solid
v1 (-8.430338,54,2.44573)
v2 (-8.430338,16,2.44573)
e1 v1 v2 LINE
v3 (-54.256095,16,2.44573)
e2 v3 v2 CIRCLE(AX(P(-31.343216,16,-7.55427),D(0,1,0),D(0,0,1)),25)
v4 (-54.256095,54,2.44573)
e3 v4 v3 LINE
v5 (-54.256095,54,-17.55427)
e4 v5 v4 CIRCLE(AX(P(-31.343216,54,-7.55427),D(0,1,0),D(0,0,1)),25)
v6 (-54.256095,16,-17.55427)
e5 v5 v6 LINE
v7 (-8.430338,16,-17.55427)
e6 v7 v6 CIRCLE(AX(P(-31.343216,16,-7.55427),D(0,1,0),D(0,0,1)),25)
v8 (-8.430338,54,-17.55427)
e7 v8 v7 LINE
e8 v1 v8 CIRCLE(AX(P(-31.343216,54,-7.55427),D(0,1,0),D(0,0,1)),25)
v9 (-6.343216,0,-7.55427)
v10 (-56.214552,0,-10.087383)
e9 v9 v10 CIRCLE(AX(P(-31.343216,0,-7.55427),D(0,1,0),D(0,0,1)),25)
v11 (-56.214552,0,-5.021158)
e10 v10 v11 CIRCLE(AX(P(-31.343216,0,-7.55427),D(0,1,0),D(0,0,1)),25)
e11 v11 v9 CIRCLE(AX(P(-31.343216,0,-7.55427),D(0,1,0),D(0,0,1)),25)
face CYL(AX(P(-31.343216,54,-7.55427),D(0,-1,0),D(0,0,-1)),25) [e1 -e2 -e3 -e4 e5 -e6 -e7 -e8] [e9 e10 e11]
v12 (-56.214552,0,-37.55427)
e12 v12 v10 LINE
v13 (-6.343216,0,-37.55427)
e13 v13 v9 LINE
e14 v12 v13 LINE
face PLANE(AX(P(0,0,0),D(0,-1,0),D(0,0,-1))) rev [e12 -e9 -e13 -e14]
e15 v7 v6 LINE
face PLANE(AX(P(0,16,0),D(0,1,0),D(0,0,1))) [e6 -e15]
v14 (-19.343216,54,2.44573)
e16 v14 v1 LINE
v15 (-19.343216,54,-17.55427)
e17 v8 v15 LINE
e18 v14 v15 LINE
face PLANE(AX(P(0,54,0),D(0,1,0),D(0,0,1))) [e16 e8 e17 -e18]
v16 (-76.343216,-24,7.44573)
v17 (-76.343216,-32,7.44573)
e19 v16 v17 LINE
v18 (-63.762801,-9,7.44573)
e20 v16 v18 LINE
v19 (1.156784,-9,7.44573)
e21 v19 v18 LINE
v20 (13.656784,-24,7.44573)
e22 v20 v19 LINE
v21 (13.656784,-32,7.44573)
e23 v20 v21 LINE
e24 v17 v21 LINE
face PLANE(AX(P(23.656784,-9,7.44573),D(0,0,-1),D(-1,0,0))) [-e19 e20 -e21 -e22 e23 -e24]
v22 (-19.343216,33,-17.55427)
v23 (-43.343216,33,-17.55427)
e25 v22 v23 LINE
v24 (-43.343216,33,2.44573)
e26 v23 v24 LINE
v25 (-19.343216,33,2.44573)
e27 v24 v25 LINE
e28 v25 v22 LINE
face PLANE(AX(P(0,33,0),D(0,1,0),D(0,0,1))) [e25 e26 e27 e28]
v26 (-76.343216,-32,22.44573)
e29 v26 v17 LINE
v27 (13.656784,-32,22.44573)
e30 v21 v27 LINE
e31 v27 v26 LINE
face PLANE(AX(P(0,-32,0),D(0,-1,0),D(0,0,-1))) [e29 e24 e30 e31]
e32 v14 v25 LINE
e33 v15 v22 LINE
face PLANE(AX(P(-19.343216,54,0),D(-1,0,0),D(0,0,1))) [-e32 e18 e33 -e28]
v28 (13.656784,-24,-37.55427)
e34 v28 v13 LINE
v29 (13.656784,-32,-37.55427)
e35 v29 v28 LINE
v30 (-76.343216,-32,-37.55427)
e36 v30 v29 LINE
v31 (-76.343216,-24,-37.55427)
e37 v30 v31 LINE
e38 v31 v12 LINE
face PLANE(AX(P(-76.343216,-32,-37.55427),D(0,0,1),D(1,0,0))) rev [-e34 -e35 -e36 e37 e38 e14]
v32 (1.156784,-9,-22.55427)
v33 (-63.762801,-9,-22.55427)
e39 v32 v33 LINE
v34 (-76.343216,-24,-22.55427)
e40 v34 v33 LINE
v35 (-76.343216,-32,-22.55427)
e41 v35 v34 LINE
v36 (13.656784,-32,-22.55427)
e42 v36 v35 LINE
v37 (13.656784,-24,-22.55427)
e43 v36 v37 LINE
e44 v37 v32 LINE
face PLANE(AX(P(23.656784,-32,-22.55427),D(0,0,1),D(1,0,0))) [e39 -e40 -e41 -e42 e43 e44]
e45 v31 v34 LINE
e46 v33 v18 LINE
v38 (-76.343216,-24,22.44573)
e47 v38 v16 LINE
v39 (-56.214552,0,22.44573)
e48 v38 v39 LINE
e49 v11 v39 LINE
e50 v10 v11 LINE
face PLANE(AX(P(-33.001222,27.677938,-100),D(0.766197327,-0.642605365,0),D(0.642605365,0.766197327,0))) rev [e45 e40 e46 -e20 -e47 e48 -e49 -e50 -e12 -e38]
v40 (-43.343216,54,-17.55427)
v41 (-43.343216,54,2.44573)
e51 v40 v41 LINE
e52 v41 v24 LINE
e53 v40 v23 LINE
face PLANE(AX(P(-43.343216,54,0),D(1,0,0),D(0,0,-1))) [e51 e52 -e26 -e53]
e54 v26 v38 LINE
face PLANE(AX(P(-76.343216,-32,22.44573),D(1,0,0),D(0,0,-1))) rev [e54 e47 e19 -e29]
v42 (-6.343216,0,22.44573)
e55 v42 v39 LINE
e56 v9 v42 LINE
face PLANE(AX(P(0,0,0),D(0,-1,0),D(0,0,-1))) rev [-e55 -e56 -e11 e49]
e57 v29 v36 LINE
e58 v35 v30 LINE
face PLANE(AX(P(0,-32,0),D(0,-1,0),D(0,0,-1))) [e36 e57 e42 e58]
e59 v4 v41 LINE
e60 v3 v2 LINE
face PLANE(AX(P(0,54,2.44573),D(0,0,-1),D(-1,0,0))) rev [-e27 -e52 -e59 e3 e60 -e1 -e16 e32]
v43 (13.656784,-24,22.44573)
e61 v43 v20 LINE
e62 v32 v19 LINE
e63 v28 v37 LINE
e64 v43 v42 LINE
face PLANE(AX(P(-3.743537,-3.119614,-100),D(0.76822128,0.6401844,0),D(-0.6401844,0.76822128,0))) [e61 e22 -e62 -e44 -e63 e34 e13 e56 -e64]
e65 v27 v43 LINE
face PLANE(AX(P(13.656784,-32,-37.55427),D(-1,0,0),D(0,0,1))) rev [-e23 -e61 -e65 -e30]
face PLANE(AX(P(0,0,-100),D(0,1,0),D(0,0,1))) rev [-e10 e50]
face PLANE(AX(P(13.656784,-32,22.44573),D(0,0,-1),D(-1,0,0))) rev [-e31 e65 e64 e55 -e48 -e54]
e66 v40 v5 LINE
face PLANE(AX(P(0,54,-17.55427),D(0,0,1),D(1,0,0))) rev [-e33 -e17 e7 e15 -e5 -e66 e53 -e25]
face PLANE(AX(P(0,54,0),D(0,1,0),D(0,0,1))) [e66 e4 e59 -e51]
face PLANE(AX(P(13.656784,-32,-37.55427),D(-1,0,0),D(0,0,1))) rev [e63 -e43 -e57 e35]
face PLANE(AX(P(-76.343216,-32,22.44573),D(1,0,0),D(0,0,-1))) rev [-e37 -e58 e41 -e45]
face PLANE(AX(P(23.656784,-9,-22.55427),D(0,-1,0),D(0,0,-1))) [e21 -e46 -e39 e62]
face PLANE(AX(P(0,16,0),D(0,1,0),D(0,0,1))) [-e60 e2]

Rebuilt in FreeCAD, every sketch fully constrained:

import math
import FreeCAD as App
import Part
import Sketcher

V = App.Vector


def add_polygon(sketch, points):
    """Adds a closed chain of lines whose ends are joined by coincident constraints."""
    first, n = sketch.GeometryCount, len(points)
    for a, b in zip(points, points[1:] + points[:1]):
        sketch.addGeometry(Part.LineSegment(App.Vector(*a, 0), App.Vector(*b, 0)), False)
    for i in range(n):
        sketch.addConstraint(Sketcher.Constraint("Coincident", first + i, 2, first + (i + 1) % n, 1))

doc = App.newDocument("Part")
params = doc.addObject("Spreadsheet::Sheet", "Params")
for row, (alias, value) in enumerate([
    ("sketch1_width", "90 mm"),
    ("sketch1_height", "60 mm"),
    ("pad1_length", "32 mm"),
    ("sketch2_radius", "25 mm"),
    ("sketch2_height", "20 mm"),
    ("pad2_length", "54 mm"),
    ("sketch3_width", "24 mm"),
    ("sketch3_height", "20 mm"),
    ("pad3_length", "33 mm"),
    ("sketch4_radius", "25 mm"),
    ("sketch4_height", "10 mm"),
    ("pad4_length", "16 mm"),
    ("sketch5_width", "23 mm"),
    ("sketch5_height", "30 mm"),
    ("pocket1_length", "100 mm"),
    ("sketch6_width", "20 mm"),
    ("sketch6_height", "24 mm"),
    ("pocket2_length", "100 mm"),
    ("sketch7_width", "20 mm"),
    ("sketch7_height", "24 mm"),
    ("pocket3_length", "100 mm"),
], start=1):
    params.set(f"A{row}", alias)
    params.set(f"B{row}", "=" + value)
    params.setAlias(f"B{row}", alias)

body = doc.addObject("PartDesign::Body", "Body")

# Sketch on XZ plane
sketch1 = body.newObject("Sketcher::SketchObject", "Sketch")
sketch1.AttachmentSupport = (doc.getObject("XZ_Plane"), [""])
sketch1.MapMode = "FlatFace"
add_polygon(sketch1, [(-76, -38), (-76, 22), (14, 22), (14, -38)])  # lines 0-3
sketch1.addConstraint([
    Sketcher.Constraint("Vertical", 0),
    Sketcher.Constraint("Horizontal", 1),
    Sketcher.Constraint("Vertical", 2),
    Sketcher.Constraint("Horizontal", 3),
    Sketcher.Constraint("DistanceX", 1, 1, 1, 2, 90.0),
    Sketcher.Constraint("DistanceY", 0, 1, 0, 2, 60.0),
    Sketcher.Constraint("DistanceY", -1, 1, 0, 2, 22.44573),
    Sketcher.Constraint("DistanceX", 0, 2, -1, 1, 76.343216),
])
sketch1.setExpression("Constraints[8]", "Params.sketch1_width")
sketch1.setExpression("Constraints[9]", "Params.sketch1_height")
pad1 = body.newObject("PartDesign::Pad", "Pad")
pad1.Profile = sketch1
pad1.setExpression("Length", "Params.pad1_length")

# Sketch on XZ plane
sketch2 = body.newObject("Sketcher::SketchObject", "Sketch001")
sketch2.AttachmentSupport = (doc.getObject("XZ_Plane"), [""])
sketch2.MapMode = "FlatFace"
sketch2.addGeometry([
    Part.ArcOfCircle(Part.Circle(V(-31, -8, 0), V(0, 0, 1), 25), math.radians(-180), math.radians(-156)),  # 0
    Part.ArcOfCircle(Part.Circle(V(-31, -8, 0), V(0, 0, 1), 25), math.radians(156), math.radians(180)),  # 1
    Part.LineSegment(V(-54, 2, 0), V(-43, 2, 0)),  # 2
    Part.LineSegment(V(-43, 2, 0), V(-43, -18, 0)),  # 3
    Part.LineSegment(V(-43, -18, 0), V(-54, -18, 0)),  # 4
    Part.ArcOfCircle(Part.Circle(V(-31, -8, 0), V(0, 0, 1), 25), math.radians(0), math.radians(24)),  # 5
    Part.ArcOfCircle(Part.Circle(V(-31, -8, 0), V(0, 0, 1), 25), math.radians(-24), math.radians(0)),  # 6
    Part.LineSegment(V(-8, -18, 0), V(-19, -18, 0)),  # 7
    Part.LineSegment(V(-19, -18, 0), V(-19, 2, 0)),  # 8
    Part.LineSegment(V(-19, 2, 0), V(-8, 2, 0)),  # 9
], False)
sketch2.addConstraint([
    Sketcher.Constraint("Tangent", 0, 1, 1, 2),
    Sketcher.Constraint("Coincident", 1, 1, 2, 1),
    Sketcher.Constraint("Coincident", 2, 2, 3, 1),
    Sketcher.Constraint("Coincident", 3, 2, 4, 1),
    Sketcher.Constraint("Coincident", 4, 2, 0, 2),
    Sketcher.Constraint("Tangent", 5, 1, 6, 2),
    Sketcher.Constraint("Coincident", 6, 1, 7, 1),
    Sketcher.Constraint("Coincident", 7, 2, 8, 1),
    Sketcher.Constraint("Coincident", 8, 2, 9, 1),
    Sketcher.Constraint("Coincident", 9, 2, 5, 2),
    Sketcher.Constraint("Horizontal", 2),
    Sketcher.Constraint("Vertical", 3),
    Sketcher.Constraint("Horizontal", 4),
    Sketcher.Constraint("Horizontal", 7),
    Sketcher.Constraint("Vertical", 8),
    Sketcher.Constraint("Horizontal", 9),
    Sketcher.Constraint("Coincident", 5, 3, 0, 3),
    Sketcher.Constraint("Equal", 0, 1),
    Sketcher.Constraint("Equal", 1, 5),
    Sketcher.Constraint("Equal", 5, 6),
    Sketcher.Constraint("Horizontal", 6, 3, 0, 1),
    Sketcher.Constraint("Horizontal", 0, 1, 5, 1),
    Sketcher.Constraint("Horizontal", 4, 2, 6, 1),
    Sketcher.Constraint("Horizontal", 2, 2, 8, 2),
    Sketcher.Constraint("Vertical", 1, 1, 4, 2),
    Sketcher.Constraint("Equal", 4, 7),
    Sketcher.Constraint("Radius", 0, 25.0),
    Sketcher.Constraint("DistanceY", 3, 2, 3, 1, 20.0),
    Sketcher.Constraint("DistanceX", 2, 2, 6, 3, 12.0),
    Sketcher.Constraint("DistanceY", 0, 3, -1, 1, 7.55427),
    Sketcher.Constraint("DistanceX", 0, 3, -1, 1, 31.343216),
])
sketch2.setExpression("Constraints[26]", "Params.sketch2_radius")
sketch2.setExpression("Constraints[27]", "Params.sketch2_height")
pad2 = body.newObject("PartDesign::Pad", "Pad001")
pad2.Profile = sketch2
pad2.setExpression("Length", "Params.pad2_length")
pad2.Reversed = True

# Sketch on XZ plane
sketch3 = body.newObject("Sketcher::SketchObject", "Sketch002")
sketch3.AttachmentSupport = (doc.getObject("XZ_Plane"), [""])
sketch3.MapMode = "FlatFace"
add_polygon(sketch3, [(-43, -18), (-43, 2), (-19, 2), (-19, -18)])  # lines 0-3
sketch3.addConstraint([
    Sketcher.Constraint("Vertical", 0),
    Sketcher.Constraint("Horizontal", 1),
    Sketcher.Constraint("Vertical", 2),
    Sketcher.Constraint("Horizontal", 3),
    Sketcher.Constraint("DistanceX", 1, 1, 1, 2, 24.0),
    Sketcher.Constraint("DistanceY", 0, 1, 0, 2, 20.0),
    Sketcher.Constraint("DistanceY", -1, 1, 0, 2, 2.44573),
    Sketcher.Constraint("DistanceX", 0, 2, -1, 1, 43.343216),
])
sketch3.setExpression("Constraints[8]", "Params.sketch3_width")
sketch3.setExpression("Constraints[9]", "Params.sketch3_height")
pad3 = body.newObject("PartDesign::Pad", "Pad002")
pad3.Profile = sketch3
pad3.setExpression("Length", "Params.pad3_length")
pad3.Reversed = True

# Sketch on XZ plane
sketch4 = body.newObject("Sketcher::SketchObject", "Sketch003")
sketch4.AttachmentSupport = (doc.getObject("XZ_Plane"), [""])
sketch4.MapMode = "FlatFace"
sketch4.addGeometry([
    Part.ArcOfCircle(Part.Circle(V(-31, -8, 0), V(0, 0, 1), 25), math.radians(24), math.radians(156)),
    Part.LineSegment(V(-8, 2, 0), V(-54, 2, 0)),
    Part.ArcOfCircle(Part.Circle(V(-31, -8, 0), V(0, 0, 1), 25), math.radians(-156), math.radians(-24)),
    Part.LineSegment(V(-54, -18, 0), V(-8, -18, 0)),
], False)
sketch4.addConstraint([
    Sketcher.Constraint("Coincident", 0, 1, 1, 1),
    Sketcher.Constraint("Coincident", 1, 2, 0, 2),
    Sketcher.Constraint("Coincident", 2, 1, 3, 1),
    Sketcher.Constraint("Coincident", 3, 2, 2, 2),
    Sketcher.Constraint("Horizontal", 1),
    Sketcher.Constraint("Horizontal", 3),
    Sketcher.Constraint("Coincident", 2, 3, 0, 3),
    Sketcher.Constraint("Equal", 0, 2),
    Sketcher.Constraint("Vertical", 1, 2, 2, 1),
    Sketcher.Constraint("Radius", 0, 25.0),
    Sketcher.Constraint("DistanceY", 0, 3, 0, 1, 10.0),
    Sketcher.Constraint("DistanceY", 0, 3, -1, 1, 7.55427),
    Sketcher.Constraint("DistanceX", 0, 3, -1, 1, 31.343216),
])
sketch4.setExpression("Constraints[9]", "Params.sketch4_radius")
sketch4.setExpression("Constraints[10]", "Params.sketch4_height")
pad4 = body.newObject("PartDesign::Pad", "Pad003")
pad4.Profile = sketch4
pad4.setExpression("Length", "Params.pad4_length")
pad4.Reversed = True

# Sketch on YZ plane
sketch5 = body.newObject("Sketcher::SketchObject", "Sketch004")
sketch5.AttachmentSupport = (doc.getObject("YZ_Plane"), [""])
sketch5.MapMode = "FlatFace"
sketch5.AttachmentOffset = App.Placement(V(0, 0, -76.343216), App.Rotation())
add_polygon(sketch5, [(-9, -23), (-32, -23), (-32, 7), (-9, 7)])  # lines 0-3
sketch5.addConstraint([
    Sketcher.Constraint("Horizontal", 0),
    Sketcher.Constraint("Vertical", 1),
    Sketcher.Constraint("Horizontal", 2),
    Sketcher.Constraint("Vertical", 3),
    Sketcher.Constraint("DistanceX", 0, 2, 0, 1, 23.0),
    Sketcher.Constraint("DistanceY", 1, 1, 1, 2, 30.0),
    Sketcher.Constraint("DistanceX", 0, 2, -1, 1, 32.0),
    Sketcher.Constraint("DistanceY", 0, 2, -1, 1, 22.55427),
])
sketch5.setExpression("Constraints[8]", "Params.sketch5_width")
sketch5.setExpression("Constraints[9]", "Params.sketch5_height")
pocket1 = body.newObject("PartDesign::Pocket", "Pocket")
pocket1.Profile = sketch5
pocket1.setExpression("Length", "Params.pocket1_length")
pocket1.Reversed = True

# Sketch on XY plane
sketch6 = body.newObject("Sketcher::SketchObject", "Sketch005")
sketch6.AttachmentSupport = (doc.getObject("XY_Plane"), [""])
sketch6.MapMode = "FlatFace"
add_polygon(sketch6, [(-56, 0), (-76, 0), (-76, -24)])  # lines 0-2
add_polygon(sketch6, [(14, -24), (14, 0), (-6, 0)])  # lines 3-5
sketch6.addConstraint([
    Sketcher.Constraint("Horizontal", 0),
    Sketcher.Constraint("Vertical", 1),
    Sketcher.Constraint("Vertical", 3),
    Sketcher.Constraint("Horizontal", 4),
    Sketcher.Constraint("PointOnObject", 0, 2, -1),
    Sketcher.Constraint("PointOnObject", 3, 2, -1),
    Sketcher.Constraint("Horizontal", 1, 2, 5, 2),
    Sketcher.Constraint("DistanceX", 4, 2, 4, 1, 20.0),
    Sketcher.Constraint("DistanceY", 1, 2, 1, 1, 24.0),
    Sketcher.Constraint("DistanceX", 0, 2, 3, 2, 90.0),
    Sketcher.Constraint("DistanceX", 0, 2, 0, 1, 20.128664),
    Sketcher.Constraint("DistanceX", 2, 2, -1, 1, 56.214552),
])
sketch6.setExpression("Constraints[13]", "Params.sketch6_width")
sketch6.setExpression("Constraints[14]", "Params.sketch6_height")
pocket2 = body.newObject("PartDesign::Pocket", "Pocket001")
pocket2.Profile = sketch6
pocket2.setExpression("Length", "Params.pocket2_length")

# Sketch on XY plane
sketch7 = body.newObject("Sketcher::SketchObject", "Sketch006")
sketch7.AttachmentSupport = (doc.getObject("XY_Plane"), [""])
sketch7.MapMode = "FlatFace"
add_polygon(sketch7, [(14, -24), (14, 0), (-6, 0)])  # lines 0-2
add_polygon(sketch7, [(-56, 0), (-76, 0), (-76, -24)])  # lines 3-5
sketch7.addConstraint([
    Sketcher.Constraint("Vertical", 0),
    Sketcher.Constraint("Horizontal", 1),
    Sketcher.Constraint("Horizontal", 3),
    Sketcher.Constraint("Vertical", 4),
    Sketcher.Constraint("PointOnObject", 0, 2, -1),
    Sketcher.Constraint("PointOnObject", 3, 2, -1),
    Sketcher.Constraint("Horizontal", 2, 2, 4, 2),
    Sketcher.Constraint("DistanceX", 1, 2, 1, 1, 20.0),
    Sketcher.Constraint("DistanceY", 0, 1, 0, 2, 24.0),
    Sketcher.Constraint("DistanceX", 3, 2, 1, 2, 70.0),
    Sketcher.Constraint("DistanceX", 3, 2, 3, 1, 20.128664),
    Sketcher.Constraint("DistanceX", 5, 2, -1, 1, 56.214552),
])
sketch7.setExpression("Constraints[13]", "Params.sketch7_width")
sketch7.setExpression("Constraints[14]", "Params.sketch7_height")
pocket3 = body.newObject("PartDesign::Pocket", "Pocket002")
pocket3.Profile = sketch7
pocket3.setExpression("Length", "Params.pocket3_length")
pocket3.Reversed = True

doc.recompute()
